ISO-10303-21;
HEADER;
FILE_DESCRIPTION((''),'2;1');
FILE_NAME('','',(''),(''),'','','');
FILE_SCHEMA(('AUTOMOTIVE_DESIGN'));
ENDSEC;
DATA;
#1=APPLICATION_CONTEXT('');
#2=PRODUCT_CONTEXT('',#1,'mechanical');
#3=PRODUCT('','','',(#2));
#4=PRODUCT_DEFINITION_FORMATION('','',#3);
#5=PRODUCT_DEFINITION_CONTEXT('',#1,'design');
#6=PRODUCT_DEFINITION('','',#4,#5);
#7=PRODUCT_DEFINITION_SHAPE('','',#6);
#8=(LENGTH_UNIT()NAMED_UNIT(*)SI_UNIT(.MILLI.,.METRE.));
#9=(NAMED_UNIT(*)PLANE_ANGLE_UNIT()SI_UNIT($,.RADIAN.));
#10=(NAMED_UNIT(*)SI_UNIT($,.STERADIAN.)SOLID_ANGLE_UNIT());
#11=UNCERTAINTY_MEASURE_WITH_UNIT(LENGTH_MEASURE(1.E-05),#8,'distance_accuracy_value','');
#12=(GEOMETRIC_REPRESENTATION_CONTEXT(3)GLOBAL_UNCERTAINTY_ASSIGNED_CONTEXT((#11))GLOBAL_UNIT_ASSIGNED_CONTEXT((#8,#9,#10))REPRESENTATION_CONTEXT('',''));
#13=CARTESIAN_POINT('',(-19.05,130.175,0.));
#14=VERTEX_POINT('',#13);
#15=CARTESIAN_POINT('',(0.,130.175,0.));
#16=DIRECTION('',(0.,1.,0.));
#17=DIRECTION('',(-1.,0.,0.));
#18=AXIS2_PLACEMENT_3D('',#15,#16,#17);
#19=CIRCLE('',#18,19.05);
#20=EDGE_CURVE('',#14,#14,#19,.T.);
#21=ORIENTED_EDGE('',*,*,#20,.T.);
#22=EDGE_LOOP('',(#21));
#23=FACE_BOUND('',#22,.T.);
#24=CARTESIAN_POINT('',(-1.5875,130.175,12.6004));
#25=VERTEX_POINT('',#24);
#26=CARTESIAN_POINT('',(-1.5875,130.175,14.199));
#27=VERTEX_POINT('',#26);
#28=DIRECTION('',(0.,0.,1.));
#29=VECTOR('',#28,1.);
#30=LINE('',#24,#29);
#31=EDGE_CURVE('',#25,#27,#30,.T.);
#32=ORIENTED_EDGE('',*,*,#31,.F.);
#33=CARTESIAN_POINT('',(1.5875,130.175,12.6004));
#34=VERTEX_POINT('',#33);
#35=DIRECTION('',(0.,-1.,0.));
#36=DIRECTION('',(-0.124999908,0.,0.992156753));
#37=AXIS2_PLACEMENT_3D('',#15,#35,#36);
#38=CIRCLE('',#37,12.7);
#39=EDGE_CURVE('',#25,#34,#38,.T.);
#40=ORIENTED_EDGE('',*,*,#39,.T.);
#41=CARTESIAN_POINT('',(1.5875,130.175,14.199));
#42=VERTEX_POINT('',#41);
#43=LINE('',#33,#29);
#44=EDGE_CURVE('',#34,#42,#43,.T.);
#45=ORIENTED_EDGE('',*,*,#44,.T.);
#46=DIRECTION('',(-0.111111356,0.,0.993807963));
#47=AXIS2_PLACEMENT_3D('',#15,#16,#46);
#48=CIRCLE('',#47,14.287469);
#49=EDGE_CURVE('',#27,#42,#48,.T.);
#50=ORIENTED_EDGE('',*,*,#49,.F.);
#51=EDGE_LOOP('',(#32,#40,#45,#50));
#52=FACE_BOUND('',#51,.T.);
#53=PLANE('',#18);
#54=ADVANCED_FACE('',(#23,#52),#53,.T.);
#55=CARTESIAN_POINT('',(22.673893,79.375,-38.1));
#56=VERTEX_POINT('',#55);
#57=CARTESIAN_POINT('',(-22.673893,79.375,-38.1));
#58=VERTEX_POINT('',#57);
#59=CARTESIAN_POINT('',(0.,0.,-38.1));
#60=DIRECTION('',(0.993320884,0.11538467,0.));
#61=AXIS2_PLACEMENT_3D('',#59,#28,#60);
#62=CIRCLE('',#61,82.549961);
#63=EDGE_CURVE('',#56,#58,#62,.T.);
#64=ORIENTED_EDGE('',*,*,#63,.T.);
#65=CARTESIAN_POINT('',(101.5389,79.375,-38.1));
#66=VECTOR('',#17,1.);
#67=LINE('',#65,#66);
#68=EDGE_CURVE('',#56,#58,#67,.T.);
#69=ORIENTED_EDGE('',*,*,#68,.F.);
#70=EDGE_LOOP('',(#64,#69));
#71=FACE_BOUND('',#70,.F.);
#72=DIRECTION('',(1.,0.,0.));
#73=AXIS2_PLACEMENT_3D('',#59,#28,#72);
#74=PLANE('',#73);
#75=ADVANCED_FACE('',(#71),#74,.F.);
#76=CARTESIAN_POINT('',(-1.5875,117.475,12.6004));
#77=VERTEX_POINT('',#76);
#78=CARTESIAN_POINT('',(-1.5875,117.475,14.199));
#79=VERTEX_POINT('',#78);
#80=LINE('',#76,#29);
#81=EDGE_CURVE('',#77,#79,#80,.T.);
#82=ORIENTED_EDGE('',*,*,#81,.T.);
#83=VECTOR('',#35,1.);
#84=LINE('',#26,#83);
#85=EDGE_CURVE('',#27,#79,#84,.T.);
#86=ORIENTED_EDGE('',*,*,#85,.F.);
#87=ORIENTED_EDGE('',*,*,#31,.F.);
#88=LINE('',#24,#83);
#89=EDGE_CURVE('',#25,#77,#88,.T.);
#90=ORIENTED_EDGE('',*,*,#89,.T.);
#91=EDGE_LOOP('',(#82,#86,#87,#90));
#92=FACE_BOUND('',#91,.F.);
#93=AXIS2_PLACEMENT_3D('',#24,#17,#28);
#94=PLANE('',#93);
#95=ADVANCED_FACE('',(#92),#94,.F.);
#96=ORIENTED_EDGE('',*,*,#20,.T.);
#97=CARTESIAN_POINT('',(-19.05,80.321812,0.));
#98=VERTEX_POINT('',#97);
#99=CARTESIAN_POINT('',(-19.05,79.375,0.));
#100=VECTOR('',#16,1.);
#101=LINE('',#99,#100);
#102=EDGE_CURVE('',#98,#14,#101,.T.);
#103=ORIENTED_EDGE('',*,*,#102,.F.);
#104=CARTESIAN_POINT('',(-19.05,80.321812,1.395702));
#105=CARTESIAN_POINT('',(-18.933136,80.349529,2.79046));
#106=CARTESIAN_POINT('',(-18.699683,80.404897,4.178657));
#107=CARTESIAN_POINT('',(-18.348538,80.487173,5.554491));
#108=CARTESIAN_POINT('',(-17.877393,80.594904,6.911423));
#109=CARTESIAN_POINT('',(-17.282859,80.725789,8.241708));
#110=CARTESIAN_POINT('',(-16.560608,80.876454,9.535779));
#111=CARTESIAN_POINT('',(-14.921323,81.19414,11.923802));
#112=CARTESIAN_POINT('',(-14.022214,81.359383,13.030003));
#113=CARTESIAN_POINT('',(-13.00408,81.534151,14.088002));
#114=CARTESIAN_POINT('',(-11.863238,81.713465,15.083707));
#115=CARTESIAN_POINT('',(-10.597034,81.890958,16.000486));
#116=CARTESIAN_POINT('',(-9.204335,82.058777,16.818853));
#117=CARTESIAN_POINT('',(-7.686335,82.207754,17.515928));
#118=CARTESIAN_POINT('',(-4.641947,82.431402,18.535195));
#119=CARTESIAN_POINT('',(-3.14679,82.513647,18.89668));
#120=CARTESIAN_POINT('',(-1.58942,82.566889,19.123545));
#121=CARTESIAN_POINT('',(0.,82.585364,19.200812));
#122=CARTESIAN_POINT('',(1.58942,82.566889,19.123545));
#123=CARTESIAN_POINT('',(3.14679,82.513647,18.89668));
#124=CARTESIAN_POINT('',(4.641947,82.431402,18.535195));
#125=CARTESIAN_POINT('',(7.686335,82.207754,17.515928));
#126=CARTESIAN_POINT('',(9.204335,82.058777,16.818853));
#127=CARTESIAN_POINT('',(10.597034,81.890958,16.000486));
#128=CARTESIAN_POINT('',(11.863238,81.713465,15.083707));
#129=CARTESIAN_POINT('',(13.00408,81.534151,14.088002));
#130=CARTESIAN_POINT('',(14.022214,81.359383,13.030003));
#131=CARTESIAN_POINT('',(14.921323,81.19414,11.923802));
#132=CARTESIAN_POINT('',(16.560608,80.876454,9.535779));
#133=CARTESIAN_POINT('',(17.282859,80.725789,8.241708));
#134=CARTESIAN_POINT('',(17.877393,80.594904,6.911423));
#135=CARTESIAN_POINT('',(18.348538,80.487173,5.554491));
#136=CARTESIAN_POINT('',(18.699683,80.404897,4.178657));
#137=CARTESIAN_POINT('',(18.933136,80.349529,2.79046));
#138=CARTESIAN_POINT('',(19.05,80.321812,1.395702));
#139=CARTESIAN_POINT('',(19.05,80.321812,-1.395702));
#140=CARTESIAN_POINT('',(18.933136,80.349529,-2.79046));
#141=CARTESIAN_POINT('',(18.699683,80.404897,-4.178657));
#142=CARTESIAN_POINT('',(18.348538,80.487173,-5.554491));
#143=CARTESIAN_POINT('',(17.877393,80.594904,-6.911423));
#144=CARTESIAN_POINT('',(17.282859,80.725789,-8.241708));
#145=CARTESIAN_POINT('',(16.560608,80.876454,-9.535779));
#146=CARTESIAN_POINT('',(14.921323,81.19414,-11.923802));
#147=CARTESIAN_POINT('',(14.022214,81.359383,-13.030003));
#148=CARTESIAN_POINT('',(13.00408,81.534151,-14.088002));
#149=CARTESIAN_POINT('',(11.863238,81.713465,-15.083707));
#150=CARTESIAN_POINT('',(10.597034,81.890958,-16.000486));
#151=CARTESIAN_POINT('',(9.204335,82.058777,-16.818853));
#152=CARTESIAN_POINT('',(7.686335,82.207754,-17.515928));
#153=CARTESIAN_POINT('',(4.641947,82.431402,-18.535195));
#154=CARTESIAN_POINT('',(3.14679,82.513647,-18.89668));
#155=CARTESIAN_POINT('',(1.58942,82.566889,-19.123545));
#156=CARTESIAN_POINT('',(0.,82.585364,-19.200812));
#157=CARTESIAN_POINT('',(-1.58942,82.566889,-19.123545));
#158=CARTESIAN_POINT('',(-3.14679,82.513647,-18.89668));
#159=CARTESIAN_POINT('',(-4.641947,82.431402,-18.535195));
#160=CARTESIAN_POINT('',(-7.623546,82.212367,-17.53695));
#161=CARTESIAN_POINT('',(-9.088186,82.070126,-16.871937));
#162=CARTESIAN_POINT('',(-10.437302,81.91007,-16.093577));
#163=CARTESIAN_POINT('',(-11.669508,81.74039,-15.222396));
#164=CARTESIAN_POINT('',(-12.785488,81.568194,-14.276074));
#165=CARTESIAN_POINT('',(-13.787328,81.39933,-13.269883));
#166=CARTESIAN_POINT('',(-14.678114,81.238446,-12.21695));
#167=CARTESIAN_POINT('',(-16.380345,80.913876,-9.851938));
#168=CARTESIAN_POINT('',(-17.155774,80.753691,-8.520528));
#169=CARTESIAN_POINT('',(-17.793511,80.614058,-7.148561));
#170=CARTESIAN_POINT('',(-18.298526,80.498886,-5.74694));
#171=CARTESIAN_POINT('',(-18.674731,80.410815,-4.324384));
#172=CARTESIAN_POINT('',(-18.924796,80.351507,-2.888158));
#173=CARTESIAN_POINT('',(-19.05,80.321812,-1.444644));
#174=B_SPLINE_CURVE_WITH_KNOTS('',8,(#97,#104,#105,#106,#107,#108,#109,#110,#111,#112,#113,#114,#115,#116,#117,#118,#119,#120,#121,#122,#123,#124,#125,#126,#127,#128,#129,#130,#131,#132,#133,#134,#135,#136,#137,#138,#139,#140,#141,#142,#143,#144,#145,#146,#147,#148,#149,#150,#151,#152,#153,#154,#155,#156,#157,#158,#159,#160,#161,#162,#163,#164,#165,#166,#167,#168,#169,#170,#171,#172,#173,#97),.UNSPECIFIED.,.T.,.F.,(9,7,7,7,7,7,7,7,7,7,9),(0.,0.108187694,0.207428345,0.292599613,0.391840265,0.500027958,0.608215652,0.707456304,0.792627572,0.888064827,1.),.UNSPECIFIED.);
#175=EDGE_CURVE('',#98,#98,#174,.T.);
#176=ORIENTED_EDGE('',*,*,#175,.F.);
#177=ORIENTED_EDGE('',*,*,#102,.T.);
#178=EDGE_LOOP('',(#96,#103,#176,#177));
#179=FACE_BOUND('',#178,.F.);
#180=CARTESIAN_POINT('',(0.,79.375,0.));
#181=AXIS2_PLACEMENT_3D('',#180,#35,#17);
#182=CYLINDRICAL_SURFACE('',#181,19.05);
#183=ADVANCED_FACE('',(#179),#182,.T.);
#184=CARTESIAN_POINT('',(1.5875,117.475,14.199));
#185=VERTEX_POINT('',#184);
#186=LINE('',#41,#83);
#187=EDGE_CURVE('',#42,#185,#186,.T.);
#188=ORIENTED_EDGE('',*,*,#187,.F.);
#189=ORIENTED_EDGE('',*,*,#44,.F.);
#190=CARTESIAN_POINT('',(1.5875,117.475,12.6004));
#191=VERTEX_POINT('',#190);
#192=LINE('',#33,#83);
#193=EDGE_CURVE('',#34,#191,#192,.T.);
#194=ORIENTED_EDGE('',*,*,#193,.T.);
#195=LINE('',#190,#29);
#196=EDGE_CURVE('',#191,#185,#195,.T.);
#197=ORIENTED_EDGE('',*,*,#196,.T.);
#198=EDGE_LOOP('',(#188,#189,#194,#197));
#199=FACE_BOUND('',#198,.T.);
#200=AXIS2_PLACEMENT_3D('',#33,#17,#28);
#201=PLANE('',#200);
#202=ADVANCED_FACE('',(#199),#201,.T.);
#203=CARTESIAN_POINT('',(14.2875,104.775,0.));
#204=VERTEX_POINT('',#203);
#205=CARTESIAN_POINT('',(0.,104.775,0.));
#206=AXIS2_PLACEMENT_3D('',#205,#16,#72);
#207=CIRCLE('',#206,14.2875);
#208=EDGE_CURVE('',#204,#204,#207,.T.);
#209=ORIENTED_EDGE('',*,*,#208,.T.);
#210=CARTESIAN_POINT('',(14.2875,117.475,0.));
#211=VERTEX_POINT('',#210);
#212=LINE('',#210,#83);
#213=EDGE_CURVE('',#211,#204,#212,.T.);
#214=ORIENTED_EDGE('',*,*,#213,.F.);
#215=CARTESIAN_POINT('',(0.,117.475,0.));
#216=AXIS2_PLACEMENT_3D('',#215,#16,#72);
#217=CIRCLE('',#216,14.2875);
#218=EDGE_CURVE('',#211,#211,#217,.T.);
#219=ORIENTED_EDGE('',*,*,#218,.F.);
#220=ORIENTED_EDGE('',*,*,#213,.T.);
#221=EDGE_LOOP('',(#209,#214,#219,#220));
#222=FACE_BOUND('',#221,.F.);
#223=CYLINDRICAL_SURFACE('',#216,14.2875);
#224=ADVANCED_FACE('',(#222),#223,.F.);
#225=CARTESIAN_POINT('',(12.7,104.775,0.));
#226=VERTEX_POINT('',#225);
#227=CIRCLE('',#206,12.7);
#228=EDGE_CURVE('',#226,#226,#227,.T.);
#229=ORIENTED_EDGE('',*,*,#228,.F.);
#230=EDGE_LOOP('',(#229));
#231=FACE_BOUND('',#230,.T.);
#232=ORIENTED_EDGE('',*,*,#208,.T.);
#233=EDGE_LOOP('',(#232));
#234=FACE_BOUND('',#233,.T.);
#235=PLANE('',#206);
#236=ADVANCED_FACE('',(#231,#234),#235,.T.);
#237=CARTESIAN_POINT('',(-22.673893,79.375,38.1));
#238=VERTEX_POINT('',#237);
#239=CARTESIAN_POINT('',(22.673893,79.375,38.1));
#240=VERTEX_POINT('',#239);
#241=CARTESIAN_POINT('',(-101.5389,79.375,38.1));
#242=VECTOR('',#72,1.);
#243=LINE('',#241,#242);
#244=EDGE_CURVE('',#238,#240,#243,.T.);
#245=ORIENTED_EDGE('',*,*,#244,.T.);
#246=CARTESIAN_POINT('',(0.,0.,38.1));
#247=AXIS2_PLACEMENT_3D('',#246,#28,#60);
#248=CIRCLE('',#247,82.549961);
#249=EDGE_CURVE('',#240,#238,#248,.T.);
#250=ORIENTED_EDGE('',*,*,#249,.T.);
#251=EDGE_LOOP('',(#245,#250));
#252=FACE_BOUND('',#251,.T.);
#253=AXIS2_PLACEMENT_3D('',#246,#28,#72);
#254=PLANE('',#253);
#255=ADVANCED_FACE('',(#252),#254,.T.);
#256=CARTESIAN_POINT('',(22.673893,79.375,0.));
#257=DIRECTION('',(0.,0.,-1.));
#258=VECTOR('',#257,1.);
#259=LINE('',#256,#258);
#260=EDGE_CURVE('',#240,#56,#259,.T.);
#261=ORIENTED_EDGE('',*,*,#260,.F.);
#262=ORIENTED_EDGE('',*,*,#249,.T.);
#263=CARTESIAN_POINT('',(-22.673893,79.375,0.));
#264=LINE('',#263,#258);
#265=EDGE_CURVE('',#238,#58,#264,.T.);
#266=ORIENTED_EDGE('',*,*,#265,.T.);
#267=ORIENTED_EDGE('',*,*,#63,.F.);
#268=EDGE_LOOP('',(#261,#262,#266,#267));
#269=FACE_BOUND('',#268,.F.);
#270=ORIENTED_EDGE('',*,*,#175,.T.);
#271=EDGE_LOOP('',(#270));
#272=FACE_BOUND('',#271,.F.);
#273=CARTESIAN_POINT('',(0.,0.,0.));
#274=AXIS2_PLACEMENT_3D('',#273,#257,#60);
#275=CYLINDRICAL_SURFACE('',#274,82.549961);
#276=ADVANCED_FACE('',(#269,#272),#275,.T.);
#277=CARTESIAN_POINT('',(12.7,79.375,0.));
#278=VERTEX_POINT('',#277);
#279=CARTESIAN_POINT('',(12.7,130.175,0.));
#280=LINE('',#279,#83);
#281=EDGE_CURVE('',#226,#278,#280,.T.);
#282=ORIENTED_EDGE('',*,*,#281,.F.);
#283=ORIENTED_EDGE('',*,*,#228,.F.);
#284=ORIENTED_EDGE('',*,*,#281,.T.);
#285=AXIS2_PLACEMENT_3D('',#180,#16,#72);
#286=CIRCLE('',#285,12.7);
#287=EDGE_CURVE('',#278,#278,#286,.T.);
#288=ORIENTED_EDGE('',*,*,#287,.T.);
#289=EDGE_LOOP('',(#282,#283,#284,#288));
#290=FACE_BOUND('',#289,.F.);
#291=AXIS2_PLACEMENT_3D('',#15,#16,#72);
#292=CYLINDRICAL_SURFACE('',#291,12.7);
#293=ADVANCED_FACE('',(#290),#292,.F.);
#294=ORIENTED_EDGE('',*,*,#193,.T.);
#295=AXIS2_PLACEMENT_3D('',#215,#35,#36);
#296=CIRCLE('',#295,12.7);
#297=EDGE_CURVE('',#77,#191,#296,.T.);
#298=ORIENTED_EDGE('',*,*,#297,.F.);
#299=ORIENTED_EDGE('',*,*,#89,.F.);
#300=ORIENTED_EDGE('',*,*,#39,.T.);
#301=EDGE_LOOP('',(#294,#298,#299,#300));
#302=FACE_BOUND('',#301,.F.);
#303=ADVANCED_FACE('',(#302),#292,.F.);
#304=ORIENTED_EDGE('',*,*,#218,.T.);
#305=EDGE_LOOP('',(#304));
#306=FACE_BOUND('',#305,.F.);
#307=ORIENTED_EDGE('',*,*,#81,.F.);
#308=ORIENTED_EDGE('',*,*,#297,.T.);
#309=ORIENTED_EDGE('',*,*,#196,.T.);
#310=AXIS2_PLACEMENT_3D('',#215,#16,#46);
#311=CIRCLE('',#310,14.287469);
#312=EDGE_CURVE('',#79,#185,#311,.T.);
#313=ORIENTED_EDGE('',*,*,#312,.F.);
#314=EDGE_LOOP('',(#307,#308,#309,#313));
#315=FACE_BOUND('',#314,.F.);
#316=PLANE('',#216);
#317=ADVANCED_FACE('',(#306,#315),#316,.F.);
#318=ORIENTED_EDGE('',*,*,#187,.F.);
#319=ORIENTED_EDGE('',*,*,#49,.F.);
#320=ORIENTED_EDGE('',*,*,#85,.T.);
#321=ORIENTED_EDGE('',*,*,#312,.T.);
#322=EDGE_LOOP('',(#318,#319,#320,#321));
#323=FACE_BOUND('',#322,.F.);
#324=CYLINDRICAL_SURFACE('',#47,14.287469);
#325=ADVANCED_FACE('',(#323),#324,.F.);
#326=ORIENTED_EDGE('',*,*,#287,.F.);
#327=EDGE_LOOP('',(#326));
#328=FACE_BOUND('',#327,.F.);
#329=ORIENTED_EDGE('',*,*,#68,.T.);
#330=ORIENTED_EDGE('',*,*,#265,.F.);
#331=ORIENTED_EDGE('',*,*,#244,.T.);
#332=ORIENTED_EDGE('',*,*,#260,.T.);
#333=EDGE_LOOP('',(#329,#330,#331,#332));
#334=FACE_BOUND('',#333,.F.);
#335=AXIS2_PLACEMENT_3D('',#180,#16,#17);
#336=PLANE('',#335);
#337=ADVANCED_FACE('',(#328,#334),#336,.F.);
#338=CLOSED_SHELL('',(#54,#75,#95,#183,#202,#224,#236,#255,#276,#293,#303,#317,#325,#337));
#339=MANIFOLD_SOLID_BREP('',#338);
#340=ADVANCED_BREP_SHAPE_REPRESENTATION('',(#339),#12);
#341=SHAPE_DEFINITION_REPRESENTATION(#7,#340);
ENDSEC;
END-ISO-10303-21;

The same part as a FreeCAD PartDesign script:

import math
import FreeCAD as App
import Part
import Sketcher
from FreeCAD import Vector
Q = App.Units.Quantity

doc = App.newDocument("Part")
body = doc.addObject("PartDesign::Body", "Body")

# Sketch on XY plane
sketch1 = body.newObject("Sketcher::SketchObject", "Sketch")
sketch1.AttachmentSupport = (doc.getObject("XY_Plane"), [""])
sketch1.MapMode = "FlatFace"
sketch1.addGeometry([
    Part.ArcOfCircle(Part.Circle(Vector(0, 0, 0), Vector(0, 0, 1), 76), math.radians(2), math.radians(178)),  # 0
    Part.LineSegment(Vector(76, 3, 0), Vector(102, 3, 0)),  # 1
    Part.LineSegment(Vector(102, 3, 0), Vector(102, 10, 0)),  # 2
    Part.LineSegment(Vector(102, 10, 0), Vector(82, 10, 0)),  # 3
    Part.ArcOfCircle(Part.Circle(Vector(0, 0, 0), Vector(0, 0, 1), 83), math.radians(7), math.radians(173)),  # 4
    Part.LineSegment(Vector(-82, 10, 0), Vector(-102, 10, 0)),  # 5
    Part.LineSegment(Vector(-102, 10, 0), Vector(-102, 3, 0)),  # 6
    Part.LineSegment(Vector(-102, 3, 0), Vector(-76, 3, 0)),  # 7
], False)
sketch1.addConstraint([
    Sketcher.Constraint("Coincident", 0, 1, 1, 1),
    Sketcher.Constraint("Coincident", 1, 2, 2, 1),
    Sketcher.Constraint("Coincident", 2, 2, 3, 1),
    Sketcher.Constraint("Coincident", 3, 2, 4, 1),
    Sketcher.Constraint("Coincident", 4, 2, 5, 1),
    Sketcher.Constraint("Coincident", 5, 2, 6, 1),
    Sketcher.Constraint("Coincident", 6, 2, 7, 1),
    Sketcher.Constraint("Coincident", 7, 2, 0, 2),
    Sketcher.Constraint("Horizontal", 1),
    Sketcher.Constraint("Vertical", 2),
    Sketcher.Constraint("Horizontal", 3),
    Sketcher.Constraint("Horizontal", 5),
    Sketcher.Constraint("Vertical", 6),
    Sketcher.Constraint("Horizontal", 7),
    Sketcher.Constraint("Coincident", 0, 3, -1, 1),
    Sketcher.Constraint("Coincident", 4, 3, -1, 1),
    Sketcher.Constraint("Symmetric", 2, 2, 5, 2, -2),
    Sketcher.Constraint("Horizontal", 1, 2, 6, 2),
    Sketcher.Constraint("Radius", 0, Q("3 in")),
    Sketcher.Constraint("DistanceY", 2, 1, 2, 2, Q("0.25 in")),
    Sketcher.Constraint("Radius", 4, Q("3.25 in")),
    Sketcher.Constraint("DistanceY", -1, 1, 0, 1, Q("0.125 in")),
    Sketcher.Constraint("DistanceX", 1, 1, 1, 2, Q("1.0002 in")),
])
pad1 = body.newObject("PartDesign::Pad", "Pad")
pad1.Profile = sketch1
pad1.Length = Q("3 in")
pad1.Midplane = True

# Sketch on XZ plane
sketch2 = body.newObject("Sketcher::SketchObject", "Sketch001")
sketch2.AttachmentSupport = (doc.getObject("XZ_Plane"), [""])
sketch2.MapMode = "FlatFace"
sketch2.AttachmentOffset = App.Placement(Vector(0, 0, -0.375 * 25.4), App.Rotation())
sketch2.addGeometry([
    Part.Circle(Vector(-91.8, 25.4, 0), Vector(0, 0, 1), 3.4),
    Part.Circle(Vector(-91.8, 0, 0), Vector(0, 0, 1), 3.4),
    Part.Circle(Vector(-91.8, -25.4, 0), Vector(0, 0, 1), 3.4),
], False)
sketch2.addConstraint([
    Sketcher.Constraint("Equal", 0, 1),
    Sketcher.Constraint("Equal", 1, 2),
    Sketcher.Constraint("Symmetric", 0, 3, 2, 3, -1),
    Sketcher.Constraint("PointOnObject", 1, 3, -1),
    Sketcher.Constraint("Vertical", 0, 3, 1, 3),
    Sketcher.Constraint("Diameter", 0, Q("0.266 in")),
    Sketcher.Constraint("DistanceY", -1, 1, 0, 3, Q("1 in")),
    Sketcher.Constraint("DistanceX", 0, 3, -1, 1, 91.7688),
])
doc.recompute()
hole = body.newObject("PartDesign::Hole", "Hole")
hole.Profile = sketch2
hole.ThreadType = "None"
hole.Diameter = Q("0.266 in")
hole.DepthType = "ThroughAll"
hole.Reversed = True
doc.recompute()

mirrored = body.newObject("PartDesign::Mirrored", "Mirrored")
mirrored.Originals = [hole]
mirrored.MirrorPlane = (doc.getObject("YZ_Plane"), [""])
body.Tip = mirrored

# Sketch on XZ plane
sketch3 = body.newObject("Sketcher::SketchObject", "Sketch002")
sketch3.AttachmentSupport = (doc.getObject("XZ_Plane"), [""])
sketch3.MapMode = "FlatFace"
sketch3.AttachmentOffset = App.Placement(Vector(0, 0, -3.125 * 25.4), App.Rotation())
sketch3.addGeometry(Part.Circle(Vector(0, 0, 0), Vector(0, 0, 1), 19), False)
sketch3.addConstraint([
    Sketcher.Constraint("Coincident", 0, 3, -1, 1),
    Sketcher.Constraint("Diameter", 0, Q("1.5 in")),
])
pad2 = body.newObject("PartDesign::Pad", "Pad001")
pad2.Profile = sketch3
pad2.Length = Q("2 in")
pad2.Reversed = True

# Sketch on XZ plane
sketch4 = body.newObject("Sketcher::SketchObject", "Sketch003")
sketch4.AttachmentSupport = (doc.getObject("XZ_Plane"), [""])
sketch4.MapMode = "FlatFace"
sketch4.AttachmentOffset = App.Placement(Vector(0, 0, -5.125 * 25.4), App.Rotation())
sketch4.addGeometry(Part.Circle(Vector(0, 0, 0), Vector(0, 0, 1), 13), False)
sketch4.addConstraint([
    Sketcher.Constraint("Coincident", 0, 3, -1, 1),
    Sketcher.Constraint("Diameter", 0, Q("1 in")),
])
pocket1 = body.newObject("PartDesign::Pocket", "Pocket")
pocket1.Profile = sketch4
pocket1.Length = Q("2 in")
pocket1.Reversed = True

# Sketch on XZ plane
sketch5 = body.newObject("Sketcher::SketchObject", "Sketch004")
sketch5.AttachmentSupport = (doc.getObject("XZ_Plane"), [""])
sketch5.MapMode = "FlatFace"
sketch5.AttachmentOffset = App.Placement(Vector(0, 0, -5.125 * 25.4), App.Rotation())
sketch5.addGeometry([
    Part.ArcOfCircle(Part.Circle(Vector(0, 0, 0), Vector(0, 0, 1), 12.7), math.radians(82.82), math.radians(97.18)),
    Part.LineSegment(Vector(-1.6, 12.6, 0), Vector(-1.6, 14.2, 0)),
    Part.ArcOfCircle(Part.Circle(Vector(0, 0, 0), Vector(0, 0, 1), 14.3), math.radians(83.62), math.radians(96.38)),
    Part.LineSegment(Vector(1.6, 14.2, 0), Vector(1.6, 12.6, 0)),
], False)
sketch5.addConstraint([
    Sketcher.Constraint("Coincident", 0, 2, 1, 1),
    Sketcher.Constraint("Coincident", 1, 2, 2, 2),
    Sketcher.Constraint("Coincident", 2, 1, 3, 1),
    Sketcher.Constraint("Coincident", 3, 2, 0, 1),
    Sketcher.Constraint("Vertical", 1),
    Sketcher.Constraint("Vertical", 3),
    Sketcher.Constraint("Coincident", 0, 3, -1, 1),
    Sketcher.Constraint("Coincident", 2, 3, -1, 1),
    Sketcher.Constraint("Horizontal", 1, 2, 2, 1),
    Sketcher.Constraint("Radius", 0, Q("0.5 in")),
    Sketcher.Constraint("Radius", 2, Q("0.5625 in")),
    Sketcher.Constraint("DistanceX", 0, 2, -1, 1, Q("0.0625 in")),
])
pocket2 = body.newObject("PartDesign::Pocket", "Pocket001")
pocket2.Profile = sketch5
pocket2.Length = Q("0.5 in")
pocket2.Reversed = True

# Sketch on XZ plane
sketch6 = body.newObject("Sketcher::SketchObject", "Sketch005")
sketch6.AttachmentSupport = (doc.getObject("XZ_Plane"), [""])
sketch6.MapMode = "FlatFace"
sketch6.AttachmentOffset = App.Placement(Vector(0, 0, -4.625 * 25.4), App.Rotation())
sketch6.addGeometry(Part.Circle(Vector(0, 0, 0), Vector(0, 0, 1), 14), False)
sketch6.addConstraint([
    Sketcher.Constraint("Coincident", 0, 3, -1, 1),
    Sketcher.Constraint("Diameter", 0, Q("1.125 in")),
])
pocket3 = body.newObject("PartDesign::Pocket", "Pocket002")
pocket3.Profile = sketch6
pocket3.Length = Q("0.5 in")
pocket3.Reversed = True

# Sketch on XZ plane
sketch7 = body.newObject("Sketcher::SketchObject", "Sketch006")
sketch7.AttachmentSupport = (doc.getObject("XZ_Plane"), [""])
sketch7.MapMode = "FlatFace"
sketch7.AttachmentOffset = App.Placement(Vector(0, 0, -3.125 * 25.4), App.Rotation())
sketch7.addGeometry([
    Part.LineSegment(Vector(102, -38, 0), Vector(-102, -38, 0)),
    Part.LineSegment(Vector(-102, -38, 0), Vector(-102, 38, 0)),
    Part.LineSegment(Vector(-102, 38, 0), Vector(102, 38, 0)),
    Part.LineSegment(Vector(102, 38, 0), Vector(102, -38, 0)),
], False)
sketch7.addConstraint([
    Sketcher.Constraint("Coincident", 0, 2, 1, 1),
    Sketcher.Constraint("Coincident", 1, 2, 2, 1),
    Sketcher.Constraint("Coincident", 2, 2, 3, 1),
    Sketcher.Constraint("Coincident", 3, 2, 0, 1),
    Sketcher.Constraint("Horizontal", 0),
    Sketcher.Constraint("Vertical", 1),
    Sketcher.Constraint("Horizontal", 2),
    Sketcher.Constraint("Vertical", 3),
    Sketcher.Constraint("Symmetric", 0, 2, 2, 2, -1, 1),
    Sketcher.Constraint("DistanceY", 1, 1, 1, 2, Q("3 in")),
    Sketcher.Constraint("DistanceX", 0, 2, 0, 1, Q("7.9952 in")),
])
pocket4 = body.newObject("PartDesign::Pocket", "Pocket003")
pocket4.Profile = sketch7
pocket4.Length = Q("3 in")
pocket4.Reversed = True

doc.recompute()
